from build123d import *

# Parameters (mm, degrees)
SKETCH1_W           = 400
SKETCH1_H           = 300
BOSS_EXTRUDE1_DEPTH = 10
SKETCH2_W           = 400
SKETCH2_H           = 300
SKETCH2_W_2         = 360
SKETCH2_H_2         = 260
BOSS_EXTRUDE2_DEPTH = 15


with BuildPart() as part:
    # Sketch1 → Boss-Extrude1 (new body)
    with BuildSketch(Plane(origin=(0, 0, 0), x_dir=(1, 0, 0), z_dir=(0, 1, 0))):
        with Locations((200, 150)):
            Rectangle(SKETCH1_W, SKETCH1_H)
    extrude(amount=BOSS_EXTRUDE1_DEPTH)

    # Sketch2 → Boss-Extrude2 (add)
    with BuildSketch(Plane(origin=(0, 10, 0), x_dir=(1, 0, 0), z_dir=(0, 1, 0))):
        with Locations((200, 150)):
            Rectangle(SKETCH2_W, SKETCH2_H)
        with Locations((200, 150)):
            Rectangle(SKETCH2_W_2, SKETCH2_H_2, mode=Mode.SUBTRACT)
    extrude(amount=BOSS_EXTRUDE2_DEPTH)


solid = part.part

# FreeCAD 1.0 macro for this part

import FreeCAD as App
import Part
import Sketcher
from FreeCAD import Vector
Q = App.Units.Quantity


def add_polygon(sketch, points):
    """Adds a closed chain of lines whose ends are joined by coincident constraints."""
    first, n = sketch.GeometryCount, len(points)
    for a, b in zip(points, points[1:] + points[:1]):
        sketch.addGeometry(Part.LineSegment(App.Vector(*a, 0), App.Vector(*b, 0)), False)
    for i in range(n):
        sketch.addConstraint(Sketcher.Constraint("Coincident", first + i, 2, first + (i + 1) % n, 1))

doc = App.newDocument("Part")
body = doc.addObject("PartDesign::Body", "Body")

# Sketch on XZ plane
sketch1 = body.newObject("Sketcher::SketchObject", "Sketch")
sketch1.AttachmentSupport = (doc.getObject("XZ_Plane"), [""])
sketch1.MapMode = "FlatFace"
add_polygon(sketch1, [(0, -300), (0, 0), (400, 0), (400, -300)])  # lines 0-3
sketch1.addConstraint([
    Sketcher.Constraint("Vertical", 0),
    Sketcher.Constraint("Horizontal", 1),
    Sketcher.Constraint("Vertical", 2),
    Sketcher.Constraint("Horizontal", 3),
    Sketcher.Constraint("Coincident", 0, 2, -1, 1),
    Sketcher.Constraint("DistanceX", 1, 1, 1, 2, Q("400 mm")),
    Sketcher.Constraint("DistanceY", 0, 1, 0, 2, Q("300 mm")),
])
pad1 = body.newObject("PartDesign::Pad", "Pad")
pad1.Profile = sketch1
pad1.Length = 10
pad1.Reversed = True

# Sketch on XZ plane
sketch2 = body.newObject("Sketcher::SketchObject", "Sketch001")
sketch2.AttachmentSupport = (doc.getObject("XZ_Plane"), [""])
sketch2.MapMode = "FlatFace"
sketch2.AttachmentOffset = App.Placement(Vector(0, 0, -10), App.Rotation())
add_polygon(sketch2, [(0, -300), (0, 0), (400, 0), (400, -300)])  # lines 0-3
add_polygon(sketch2, [(380, -20), (20, -20), (20, -280), (380, -280)])  # lines 4-7
sketch2.addConstraint([
    Sketcher.Constraint("Vertical", 0),
    Sketcher.Constraint("Horizontal", 1),
    Sketcher.Constraint("Vertical", 2),
    Sketcher.Constraint("Horizontal", 3),
    Sketcher.Constraint("Horizontal", 4),
    Sketcher.Constraint("Vertical", 5),
    Sketcher.Constraint("Horizontal", 6),
    Sketcher.Constraint("Vertical", 7),
    Sketcher.Constraint("Coincident", 0, 2, -1, 1),
    Sketcher.Constraint("DistanceX", 1, 1, 1, 2, Q("400 mm")),
    Sketcher.Constraint("DistanceX", 4, 2, 4, 1, Q("360 mm")),
    Sketcher.Constraint("DistanceY", 0, 1, 0, 2, Q("300 mm")),
    Sketcher.Constraint("DistanceY", 5, 2, 5, 1, Q("260 mm")),
    Sketcher.Constraint("DistanceX", -1, 1, 4, 2, Q("20 mm")),
    Sketcher.Constraint("DistanceY", 4, 2, -1, 1, Q("20 mm")),
])
pad2 = body.newObject("PartDesign::Pad", "Pad001")
pad2.Profile = sketch2
pad2.Length = 15
pad2.Reversed = True

doc.recompute()
